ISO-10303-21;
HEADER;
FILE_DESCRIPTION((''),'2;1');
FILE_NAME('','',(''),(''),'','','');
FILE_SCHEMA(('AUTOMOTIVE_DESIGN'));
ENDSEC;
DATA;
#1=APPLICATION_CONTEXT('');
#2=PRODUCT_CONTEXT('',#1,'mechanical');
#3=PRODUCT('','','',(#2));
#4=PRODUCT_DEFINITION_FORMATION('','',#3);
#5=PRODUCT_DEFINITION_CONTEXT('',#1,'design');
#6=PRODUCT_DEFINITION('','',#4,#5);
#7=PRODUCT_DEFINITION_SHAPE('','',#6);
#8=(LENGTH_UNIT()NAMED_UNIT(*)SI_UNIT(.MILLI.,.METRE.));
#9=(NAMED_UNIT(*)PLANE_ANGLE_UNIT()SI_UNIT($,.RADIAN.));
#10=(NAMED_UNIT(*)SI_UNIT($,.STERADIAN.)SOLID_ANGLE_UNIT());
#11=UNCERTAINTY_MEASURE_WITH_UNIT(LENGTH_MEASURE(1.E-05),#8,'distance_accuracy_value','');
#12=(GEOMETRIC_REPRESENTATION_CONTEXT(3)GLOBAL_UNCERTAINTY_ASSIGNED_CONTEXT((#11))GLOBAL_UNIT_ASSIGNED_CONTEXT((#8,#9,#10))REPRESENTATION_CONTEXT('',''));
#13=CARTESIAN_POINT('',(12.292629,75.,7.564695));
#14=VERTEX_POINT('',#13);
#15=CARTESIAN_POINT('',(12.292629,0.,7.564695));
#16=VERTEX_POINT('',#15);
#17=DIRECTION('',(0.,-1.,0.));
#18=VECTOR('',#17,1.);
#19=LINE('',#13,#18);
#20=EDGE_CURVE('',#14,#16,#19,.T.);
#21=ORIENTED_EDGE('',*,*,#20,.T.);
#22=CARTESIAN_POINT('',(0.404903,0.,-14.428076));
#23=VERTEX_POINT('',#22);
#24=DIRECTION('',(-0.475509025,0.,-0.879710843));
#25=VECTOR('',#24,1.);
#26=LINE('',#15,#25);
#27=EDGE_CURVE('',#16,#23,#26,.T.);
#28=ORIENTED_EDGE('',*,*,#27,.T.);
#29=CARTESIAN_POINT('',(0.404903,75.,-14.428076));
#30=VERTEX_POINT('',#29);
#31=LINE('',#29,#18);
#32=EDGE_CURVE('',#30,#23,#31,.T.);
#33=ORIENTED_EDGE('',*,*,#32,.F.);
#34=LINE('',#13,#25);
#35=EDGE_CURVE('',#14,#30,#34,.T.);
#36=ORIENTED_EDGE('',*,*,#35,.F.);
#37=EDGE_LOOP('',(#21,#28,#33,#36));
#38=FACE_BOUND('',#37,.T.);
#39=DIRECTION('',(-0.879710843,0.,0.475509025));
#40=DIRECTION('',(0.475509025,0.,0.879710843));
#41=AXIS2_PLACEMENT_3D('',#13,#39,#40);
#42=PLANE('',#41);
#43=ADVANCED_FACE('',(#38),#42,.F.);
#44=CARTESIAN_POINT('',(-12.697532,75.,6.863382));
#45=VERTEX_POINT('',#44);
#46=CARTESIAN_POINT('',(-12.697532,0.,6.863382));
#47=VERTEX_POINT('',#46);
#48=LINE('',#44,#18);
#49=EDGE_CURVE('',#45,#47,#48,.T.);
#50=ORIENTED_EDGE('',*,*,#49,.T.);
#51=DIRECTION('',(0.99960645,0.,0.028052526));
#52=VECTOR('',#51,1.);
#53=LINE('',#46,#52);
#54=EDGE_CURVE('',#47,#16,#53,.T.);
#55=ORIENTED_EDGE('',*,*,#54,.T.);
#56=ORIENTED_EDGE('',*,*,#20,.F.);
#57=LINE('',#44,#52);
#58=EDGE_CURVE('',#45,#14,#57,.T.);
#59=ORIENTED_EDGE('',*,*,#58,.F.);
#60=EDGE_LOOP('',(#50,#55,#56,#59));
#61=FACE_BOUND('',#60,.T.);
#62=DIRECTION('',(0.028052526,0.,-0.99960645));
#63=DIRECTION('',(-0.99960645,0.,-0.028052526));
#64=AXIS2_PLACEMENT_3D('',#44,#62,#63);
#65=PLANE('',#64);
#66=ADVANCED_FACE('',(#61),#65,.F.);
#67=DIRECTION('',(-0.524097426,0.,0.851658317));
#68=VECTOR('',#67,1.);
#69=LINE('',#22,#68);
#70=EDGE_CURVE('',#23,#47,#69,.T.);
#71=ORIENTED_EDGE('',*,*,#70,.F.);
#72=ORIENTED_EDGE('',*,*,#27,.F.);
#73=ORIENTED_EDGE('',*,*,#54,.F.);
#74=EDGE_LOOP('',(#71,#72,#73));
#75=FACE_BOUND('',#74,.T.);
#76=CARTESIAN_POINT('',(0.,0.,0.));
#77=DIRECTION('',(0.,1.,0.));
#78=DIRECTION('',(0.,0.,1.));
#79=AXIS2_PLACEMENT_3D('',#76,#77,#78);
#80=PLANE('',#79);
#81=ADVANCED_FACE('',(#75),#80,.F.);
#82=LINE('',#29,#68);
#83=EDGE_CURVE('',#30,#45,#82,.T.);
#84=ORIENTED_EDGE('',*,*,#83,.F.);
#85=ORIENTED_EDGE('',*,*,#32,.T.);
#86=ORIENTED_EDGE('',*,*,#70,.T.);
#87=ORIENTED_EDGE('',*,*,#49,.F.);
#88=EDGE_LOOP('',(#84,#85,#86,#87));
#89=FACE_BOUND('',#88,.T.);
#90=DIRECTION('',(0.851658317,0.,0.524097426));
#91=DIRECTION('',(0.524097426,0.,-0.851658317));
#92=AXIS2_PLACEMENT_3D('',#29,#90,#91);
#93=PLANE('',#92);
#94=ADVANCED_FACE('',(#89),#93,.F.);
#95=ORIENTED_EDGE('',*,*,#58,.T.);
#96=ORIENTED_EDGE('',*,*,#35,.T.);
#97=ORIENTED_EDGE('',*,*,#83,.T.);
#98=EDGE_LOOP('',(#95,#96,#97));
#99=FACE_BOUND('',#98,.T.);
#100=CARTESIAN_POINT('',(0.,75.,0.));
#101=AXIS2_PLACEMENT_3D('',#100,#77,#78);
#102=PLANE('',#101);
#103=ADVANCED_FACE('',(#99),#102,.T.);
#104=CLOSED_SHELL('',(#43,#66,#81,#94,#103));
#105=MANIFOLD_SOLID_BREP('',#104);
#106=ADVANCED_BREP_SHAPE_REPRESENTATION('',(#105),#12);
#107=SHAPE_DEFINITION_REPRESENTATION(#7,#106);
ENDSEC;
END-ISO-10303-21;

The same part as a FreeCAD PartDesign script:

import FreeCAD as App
import Part
import Sketcher
Q = App.Units.Quantity

doc = App.newDocument("Part")
body = doc.addObject("PartDesign::Body", "Body")

# Sketch on XZ plane
sketch1 = doc.addObject("Sketcher::SketchObject", "Sketch")
body.addObject(sketch1)
sketch1.AttachmentSupport = (doc.XZ_Plane, [""])
sketch1.MapMode = "FlatFace"
sketch1.addGeometry([
    Part.LineSegment(App.Vector(12, 8, 0), App.Vector(0, -14, 0)),
    Part.LineSegment(App.Vector(0, -14, 0), App.Vector(-13, 7, 0)),
    Part.LineSegment(App.Vector(-13, 7, 0), App.Vector(12, 8, 0)),
], False)
sketch1.addConstraint([
    Sketcher.Constraint("Coincident", 0, 2, 1, 1),
    Sketcher.Constraint("Coincident", 1, 2, 2, 1),
    Sketcher.Constraint("Coincident", 2, 2, 0, 1),
    Sketcher.Constraint("Equal", 0, 1),
    Sketcher.Constraint("Equal", 1, 2),
    Sketcher.Constraint("Distance", 0, Q("25 mm")),
    Sketcher.Constraint("DistanceY", -1, 1, 1, 2, Q("6.863382 mm")),
    Sketcher.Constraint("DistanceX", -1, 1, 2, 2, Q("12.292629 mm")),
    Sketcher.Constraint("DistanceY", 0, 2, 2, 2, Q("21.992771 mm")),
])
pad1 = doc.addObject("PartDesign::Pad", "Pad")
body.addObject(pad1)
pad1.Profile = sketch1
pad1.Length = 75
pad1.Reversed = True

doc.recompute()
